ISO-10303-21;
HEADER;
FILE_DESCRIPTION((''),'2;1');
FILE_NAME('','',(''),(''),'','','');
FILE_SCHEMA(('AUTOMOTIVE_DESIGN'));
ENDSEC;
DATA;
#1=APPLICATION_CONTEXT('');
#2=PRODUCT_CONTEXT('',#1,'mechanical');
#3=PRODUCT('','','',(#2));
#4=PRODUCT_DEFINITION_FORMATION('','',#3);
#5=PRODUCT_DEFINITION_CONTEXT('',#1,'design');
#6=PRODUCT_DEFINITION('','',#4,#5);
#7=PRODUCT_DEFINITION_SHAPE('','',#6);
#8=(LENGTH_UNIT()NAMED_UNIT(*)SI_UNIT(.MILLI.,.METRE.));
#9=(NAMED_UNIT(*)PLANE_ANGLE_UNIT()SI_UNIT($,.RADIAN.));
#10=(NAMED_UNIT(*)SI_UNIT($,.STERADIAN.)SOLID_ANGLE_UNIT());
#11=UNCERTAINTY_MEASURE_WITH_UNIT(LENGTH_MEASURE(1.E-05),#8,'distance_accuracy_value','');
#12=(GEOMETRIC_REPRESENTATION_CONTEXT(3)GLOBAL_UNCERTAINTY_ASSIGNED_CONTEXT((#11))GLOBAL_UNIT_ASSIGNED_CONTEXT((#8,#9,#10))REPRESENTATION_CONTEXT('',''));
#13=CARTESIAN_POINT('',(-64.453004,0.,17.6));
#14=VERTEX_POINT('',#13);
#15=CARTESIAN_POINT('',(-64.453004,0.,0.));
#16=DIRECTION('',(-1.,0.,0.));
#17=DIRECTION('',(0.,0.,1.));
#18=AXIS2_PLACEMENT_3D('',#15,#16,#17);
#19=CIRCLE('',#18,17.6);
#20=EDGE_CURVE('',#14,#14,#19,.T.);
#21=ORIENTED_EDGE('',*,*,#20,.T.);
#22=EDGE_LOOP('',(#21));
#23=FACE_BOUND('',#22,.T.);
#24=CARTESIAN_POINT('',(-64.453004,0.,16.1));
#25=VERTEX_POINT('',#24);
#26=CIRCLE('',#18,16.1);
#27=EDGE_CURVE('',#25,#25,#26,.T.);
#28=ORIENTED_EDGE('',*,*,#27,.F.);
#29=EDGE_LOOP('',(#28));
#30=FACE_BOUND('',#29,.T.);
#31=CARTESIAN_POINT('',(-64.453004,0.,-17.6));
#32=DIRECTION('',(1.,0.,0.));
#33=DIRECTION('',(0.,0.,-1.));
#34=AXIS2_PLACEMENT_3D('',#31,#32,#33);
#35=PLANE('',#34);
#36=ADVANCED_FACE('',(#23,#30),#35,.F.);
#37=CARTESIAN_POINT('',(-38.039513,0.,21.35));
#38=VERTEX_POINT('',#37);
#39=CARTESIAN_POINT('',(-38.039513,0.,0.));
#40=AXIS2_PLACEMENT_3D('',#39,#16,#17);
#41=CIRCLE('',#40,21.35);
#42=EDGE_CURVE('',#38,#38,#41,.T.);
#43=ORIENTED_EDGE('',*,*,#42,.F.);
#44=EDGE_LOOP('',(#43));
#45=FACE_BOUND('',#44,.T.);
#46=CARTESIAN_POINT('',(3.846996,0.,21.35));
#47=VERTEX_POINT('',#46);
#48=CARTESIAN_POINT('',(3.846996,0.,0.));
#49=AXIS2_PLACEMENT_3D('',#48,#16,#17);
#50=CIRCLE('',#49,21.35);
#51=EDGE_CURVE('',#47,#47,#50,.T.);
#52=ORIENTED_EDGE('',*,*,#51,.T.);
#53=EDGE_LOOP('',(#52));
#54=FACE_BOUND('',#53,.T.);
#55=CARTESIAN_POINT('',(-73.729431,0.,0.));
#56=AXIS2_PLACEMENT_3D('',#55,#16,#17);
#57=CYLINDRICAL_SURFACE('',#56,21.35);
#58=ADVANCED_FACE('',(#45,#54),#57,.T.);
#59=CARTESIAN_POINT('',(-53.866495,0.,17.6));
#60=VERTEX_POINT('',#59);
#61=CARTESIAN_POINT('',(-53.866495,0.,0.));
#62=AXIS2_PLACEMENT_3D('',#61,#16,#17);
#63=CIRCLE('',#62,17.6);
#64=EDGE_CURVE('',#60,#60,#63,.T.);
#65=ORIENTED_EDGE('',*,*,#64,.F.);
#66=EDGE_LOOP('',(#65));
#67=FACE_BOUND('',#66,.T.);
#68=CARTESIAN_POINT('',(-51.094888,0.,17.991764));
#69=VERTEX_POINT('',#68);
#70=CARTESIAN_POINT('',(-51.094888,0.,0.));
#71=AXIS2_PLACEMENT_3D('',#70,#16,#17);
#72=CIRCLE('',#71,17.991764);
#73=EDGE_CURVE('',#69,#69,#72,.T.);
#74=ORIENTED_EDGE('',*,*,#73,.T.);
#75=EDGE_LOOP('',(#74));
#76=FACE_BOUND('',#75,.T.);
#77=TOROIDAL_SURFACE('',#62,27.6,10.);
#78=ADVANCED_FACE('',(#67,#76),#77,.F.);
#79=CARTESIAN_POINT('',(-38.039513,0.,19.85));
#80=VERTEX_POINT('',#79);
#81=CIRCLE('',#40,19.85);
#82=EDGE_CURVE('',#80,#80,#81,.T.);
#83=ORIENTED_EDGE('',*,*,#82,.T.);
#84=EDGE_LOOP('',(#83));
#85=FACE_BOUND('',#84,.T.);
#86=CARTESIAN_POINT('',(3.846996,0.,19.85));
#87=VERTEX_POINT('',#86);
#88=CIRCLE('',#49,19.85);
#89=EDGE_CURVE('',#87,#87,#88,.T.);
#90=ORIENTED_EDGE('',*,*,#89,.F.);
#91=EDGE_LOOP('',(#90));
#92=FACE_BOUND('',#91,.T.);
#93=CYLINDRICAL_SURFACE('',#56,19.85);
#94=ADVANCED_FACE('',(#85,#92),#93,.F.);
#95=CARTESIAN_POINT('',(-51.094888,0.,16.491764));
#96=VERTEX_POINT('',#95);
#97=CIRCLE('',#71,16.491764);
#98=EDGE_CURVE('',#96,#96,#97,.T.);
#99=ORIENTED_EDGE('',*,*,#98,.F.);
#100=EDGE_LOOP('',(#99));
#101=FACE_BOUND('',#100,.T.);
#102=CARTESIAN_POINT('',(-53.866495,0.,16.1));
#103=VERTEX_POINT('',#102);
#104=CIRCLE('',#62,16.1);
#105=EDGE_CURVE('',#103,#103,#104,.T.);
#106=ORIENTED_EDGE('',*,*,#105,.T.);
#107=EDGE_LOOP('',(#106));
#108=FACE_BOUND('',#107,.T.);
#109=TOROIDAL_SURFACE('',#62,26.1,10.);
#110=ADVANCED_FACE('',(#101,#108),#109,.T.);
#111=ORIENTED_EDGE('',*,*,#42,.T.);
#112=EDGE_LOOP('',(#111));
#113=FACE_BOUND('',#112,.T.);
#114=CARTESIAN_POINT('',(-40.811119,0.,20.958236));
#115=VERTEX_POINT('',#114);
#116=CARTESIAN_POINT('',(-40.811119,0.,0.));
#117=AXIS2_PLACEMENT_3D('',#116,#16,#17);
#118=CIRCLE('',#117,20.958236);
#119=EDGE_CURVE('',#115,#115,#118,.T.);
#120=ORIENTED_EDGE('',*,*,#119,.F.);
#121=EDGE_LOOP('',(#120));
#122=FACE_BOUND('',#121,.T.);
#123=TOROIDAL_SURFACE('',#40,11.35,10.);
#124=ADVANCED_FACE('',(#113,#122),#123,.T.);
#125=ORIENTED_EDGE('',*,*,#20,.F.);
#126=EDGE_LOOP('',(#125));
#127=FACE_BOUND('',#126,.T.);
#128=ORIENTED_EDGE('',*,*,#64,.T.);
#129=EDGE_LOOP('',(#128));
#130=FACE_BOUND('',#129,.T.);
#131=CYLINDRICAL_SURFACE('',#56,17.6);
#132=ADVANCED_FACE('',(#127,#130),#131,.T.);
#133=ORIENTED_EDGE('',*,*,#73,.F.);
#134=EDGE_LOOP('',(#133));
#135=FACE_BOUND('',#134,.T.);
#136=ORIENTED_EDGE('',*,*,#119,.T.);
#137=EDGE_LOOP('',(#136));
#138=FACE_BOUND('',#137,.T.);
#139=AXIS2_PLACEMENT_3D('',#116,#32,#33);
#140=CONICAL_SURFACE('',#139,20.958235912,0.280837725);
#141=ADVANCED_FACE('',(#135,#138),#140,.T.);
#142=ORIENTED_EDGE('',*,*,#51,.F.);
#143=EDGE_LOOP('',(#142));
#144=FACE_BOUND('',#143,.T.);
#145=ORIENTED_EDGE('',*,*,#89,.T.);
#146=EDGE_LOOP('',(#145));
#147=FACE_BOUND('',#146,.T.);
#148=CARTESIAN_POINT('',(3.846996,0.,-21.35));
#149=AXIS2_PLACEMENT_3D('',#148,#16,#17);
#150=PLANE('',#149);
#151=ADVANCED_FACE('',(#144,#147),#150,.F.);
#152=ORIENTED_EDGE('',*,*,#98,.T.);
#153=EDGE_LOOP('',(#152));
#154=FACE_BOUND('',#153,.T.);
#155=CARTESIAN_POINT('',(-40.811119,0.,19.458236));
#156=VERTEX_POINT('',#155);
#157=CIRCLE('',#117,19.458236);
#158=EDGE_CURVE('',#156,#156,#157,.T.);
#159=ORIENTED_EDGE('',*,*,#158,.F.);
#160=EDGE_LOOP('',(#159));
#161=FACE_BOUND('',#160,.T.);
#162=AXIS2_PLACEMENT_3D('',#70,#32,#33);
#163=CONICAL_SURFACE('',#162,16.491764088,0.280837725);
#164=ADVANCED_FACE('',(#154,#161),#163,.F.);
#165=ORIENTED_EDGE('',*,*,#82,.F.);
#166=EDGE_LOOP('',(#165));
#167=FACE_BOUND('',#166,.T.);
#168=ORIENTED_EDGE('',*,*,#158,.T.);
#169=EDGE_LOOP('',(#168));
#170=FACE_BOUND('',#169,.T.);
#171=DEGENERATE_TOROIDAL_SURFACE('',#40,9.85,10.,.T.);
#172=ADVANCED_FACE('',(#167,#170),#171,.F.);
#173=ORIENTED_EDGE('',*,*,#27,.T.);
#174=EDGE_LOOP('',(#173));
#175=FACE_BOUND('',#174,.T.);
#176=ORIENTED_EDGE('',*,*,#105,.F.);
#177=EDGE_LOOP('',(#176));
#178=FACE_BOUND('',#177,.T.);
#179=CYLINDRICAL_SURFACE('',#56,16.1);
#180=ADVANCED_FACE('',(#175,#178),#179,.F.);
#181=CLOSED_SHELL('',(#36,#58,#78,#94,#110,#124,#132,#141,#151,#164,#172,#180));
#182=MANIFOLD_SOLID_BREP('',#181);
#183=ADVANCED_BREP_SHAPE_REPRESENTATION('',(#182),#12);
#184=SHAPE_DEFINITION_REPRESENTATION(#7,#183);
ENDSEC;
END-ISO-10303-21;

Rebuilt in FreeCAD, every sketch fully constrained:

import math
import FreeCAD as App
import Part
import Sketcher
from FreeCAD import Vector
Q = App.Units.Quantity

doc = App.newDocument("Part")
body = doc.addObject("PartDesign::Body", "Body")

# Sketch on XZ plane
sketch1 = body.newObject("Sketcher::SketchObject", "Sketch")
sketch1.AttachmentSupport = (doc.getObject("XZ_Plane"), [""])
sketch1.MapMode = "FlatFace"
sketch1.addGeometry([
    Part.LineSegment(Vector(-64.453004, -16.1, 0), Vector(-53.866495, -16.1, 0)),  # 0
    Part.ArcOfCircle(Part.Circle(Vector(-53.866495, -26.1, 0), Vector(0, 0, 1), 10), math.radians(73.909184), math.radians(90)),  # 1
    Part.LineSegment(Vector(-51.094888, -16.491764, 0), Vector(-40.811119, -19.458236, 0)),  # 2
    Part.ArcOfCircle(Part.Circle(Vector(-38.039513, -9.85, 0), Vector(0, 0, 1), 10), math.radians(-106.090816), math.radians(-90)),  # 3
    Part.LineSegment(Vector(-38.039513, -19.85, 0), Vector(3.846996, -19.85, 0)),  # 4
    Part.LineSegment(Vector(3.846996, -19.85, 0), Vector(3.846996, -21.35, 0)),  # 5
    Part.LineSegment(Vector(3.846996, -21.35, 0), Vector(-38.039513, -21.35, 0)),  # 6
    Part.ArcOfCircle(Part.Circle(Vector(-38.039513, -11.35, 0), Vector(0, 0, 1), 10), math.radians(-106.090816), math.radians(-90)),  # 7
    Part.LineSegment(Vector(-40.811119, -20.958236, 0), Vector(-51.094888, -17.991764, 0)),  # 8
    Part.ArcOfCircle(Part.Circle(Vector(-53.866495, -27.6, 0), Vector(0, 0, 1), 10), math.radians(73.909184), math.radians(90)),  # 9
    Part.LineSegment(Vector(-53.866495, -17.6, 0), Vector(-64.453004, -17.6, 0)),  # 10
    Part.LineSegment(Vector(-64.453004, -17.6, 0), Vector(-64.453004, -16.1, 0)),  # 11
], False)
sketch1.addConstraint([
    Sketcher.Constraint("Tangent", 0, 2, 1, 2),
    Sketcher.Constraint("Tangent", 1, 1, 2, 1),
    Sketcher.Constraint("Tangent", 2, 2, 3, 1),
    Sketcher.Constraint("Tangent", 3, 2, 4, 1),
    Sketcher.Constraint("Coincident", 4, 2, 5, 1),
    Sketcher.Constraint("Coincident", 5, 2, 6, 1),
    Sketcher.Constraint("Tangent", 6, 2, 7, 2),
    Sketcher.Constraint("Tangent", 7, 1, 8, 1),
    Sketcher.Constraint("Tangent", 8, 2, 9, 1),
    Sketcher.Constraint("Tangent", 9, 2, 10, 1),
    Sketcher.Constraint("Coincident", 10, 2, 11, 1),
    Sketcher.Constraint("Coincident", 11, 2, 0, 1),
    Sketcher.Constraint("Horizontal", 0),
    Sketcher.Constraint("Horizontal", 4),
    Sketcher.Constraint("Vertical", 5),
    Sketcher.Constraint("Horizontal", 6),
    Sketcher.Constraint("Horizontal", 10),
    Sketcher.Constraint("Vertical", 11),
    Sketcher.Constraint("Equal", 1, 3),
    Sketcher.Constraint("Equal", 3, 7),
    Sketcher.Constraint("Equal", 7, 9),
    Sketcher.Constraint("Parallel", 2, 8),
    Sketcher.Constraint("Vertical", 3, 3, 7, 3),
    Sketcher.Constraint("Vertical", 1, 3, 9, 3),
    Sketcher.Constraint("Radius", 1, Q("10 mm")),
    Sketcher.Constraint("DistanceY", 5, 2, 5, 1, Q("1.5 mm")),
    Sketcher.Constraint("DistanceY", 1, 3, -1, 1, Q("26.1 mm")),
    Sketcher.Constraint("DistanceY", 3, 3, -1, 1, Q("9.85 mm")),
    Sketcher.Constraint("DistanceX", 0, 1, 0, 2, Q("10.586509 mm")),
    Sketcher.Constraint("DistanceX", 4, 1, 4, 2, Q("41.886509 mm")),
    Sketcher.Constraint("DistanceX", 1, 1, -1, 1, Q("51.094888 mm")),
    Sketcher.Constraint("DistanceX", 2, 2, -1, 1, Q("40.811119 mm")),
])
revolution = body.newObject("PartDesign::Revolution", "Revolution")
revolution.Profile = sketch1
revolution.ReferenceAxis = (sketch1, ["H_Axis"])
revolution.Angle = 360

doc.recompute()
